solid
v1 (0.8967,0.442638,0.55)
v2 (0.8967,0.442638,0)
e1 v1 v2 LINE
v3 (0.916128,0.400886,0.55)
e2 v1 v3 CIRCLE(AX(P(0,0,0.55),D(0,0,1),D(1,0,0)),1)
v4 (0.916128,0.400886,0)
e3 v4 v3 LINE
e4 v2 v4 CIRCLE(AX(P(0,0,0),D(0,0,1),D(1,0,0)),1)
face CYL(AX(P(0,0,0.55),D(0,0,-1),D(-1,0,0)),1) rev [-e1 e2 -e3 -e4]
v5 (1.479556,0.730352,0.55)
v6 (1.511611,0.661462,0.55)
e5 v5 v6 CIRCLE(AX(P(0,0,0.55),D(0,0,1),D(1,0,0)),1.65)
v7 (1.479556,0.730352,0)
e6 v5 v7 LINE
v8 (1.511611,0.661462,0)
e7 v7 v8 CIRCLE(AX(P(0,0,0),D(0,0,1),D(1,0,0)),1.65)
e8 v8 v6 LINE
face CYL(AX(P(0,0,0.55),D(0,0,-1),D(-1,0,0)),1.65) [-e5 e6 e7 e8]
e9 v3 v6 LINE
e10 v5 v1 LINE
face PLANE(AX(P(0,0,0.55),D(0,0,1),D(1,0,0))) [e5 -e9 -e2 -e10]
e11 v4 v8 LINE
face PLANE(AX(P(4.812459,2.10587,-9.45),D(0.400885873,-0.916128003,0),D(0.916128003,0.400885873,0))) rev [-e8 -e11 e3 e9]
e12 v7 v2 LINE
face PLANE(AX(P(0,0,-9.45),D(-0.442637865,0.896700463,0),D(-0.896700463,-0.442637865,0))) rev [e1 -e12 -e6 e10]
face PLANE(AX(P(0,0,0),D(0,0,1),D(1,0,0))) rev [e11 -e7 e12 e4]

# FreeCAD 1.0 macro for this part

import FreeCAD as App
import Part
import Sketcher

V = App.Vector

doc = App.newDocument("Part")
body = doc.addObject("PartDesign::Body", "Body")

# Sketch on XY plane
sketch1 = body.newObject("Sketcher::SketchObject", "Sketch")
sketch1.AttachmentSupport = (doc.getObject("XY_Plane"), [""])
sketch1.MapMode = "FlatFace"
sketch1.addGeometry(Part.Circle(V(0, 0, 0), V(0, 0, 1), 1.6), False)
sketch1.addGeometry(Part.Circle(V(0, 0, 0), V(0, 0, 1), 1), False)
sketch1.addConstraint(Sketcher.Constraint("Coincident", 0, 3, -1, 1))
sketch1.addConstraint(Sketcher.Constraint("Coincident", 1, 3, -1, 1))
sketch1.addConstraint(Sketcher.Constraint("Diameter", 1, 2.0))
sketch1.addConstraint(Sketcher.Constraint("Diameter", 0, 3.3))
pad1 = body.newObject("PartDesign::Pad", "Pad")
pad1.Profile = sketch1
pad1.Length = 0.55

# Sketch on XY plane
sketch2 = body.newObject("Sketcher::SketchObject", "Sketch001")
sketch2.AttachmentSupport = (doc.getObject("XY_Plane"), [""])
sketch2.MapMode = "FlatFace"
sketch2.AttachmentOffset = App.Placement(V(0, 0, 0.55), App.Rotation())
sketch2.addGeometry(Part.LineSegment(V(4.81, 2.38, 0), V(0, 0, 0)), False)
sketch2.addGeometry(Part.LineSegment(V(0, 0, 0), V(4.81, 2.11, 0)), False)
sketch2.addGeometry(Part.LineSegment(V(4.81, 2.11, 0), V(4.81, 2.38, 0)), False)
sketch2.addConstraint(Sketcher.Constraint("Coincident", 0, 2, 1, 1))
sketch2.addConstraint(Sketcher.Constraint("Coincident", 1, 2, 2, 1))
sketch2.addConstraint(Sketcher.Constraint("Coincident", 2, 2, 0, 1))
sketch2.addConstraint(Sketcher.Constraint("Vertical", 2))
sketch2.addConstraint(Sketcher.Constraint("Coincident", 0, 2, -1, 1))
sketch2.addConstraint(Sketcher.Constraint("DistanceY", 2, 1, 2, 2, 0.269702))
sketch2.addConstraint(Sketcher.Constraint("DistanceX", -1, 1, 1, 2, 4.812459))
sketch2.addConstraint(Sketcher.Constraint("DistanceY", -1, 1, 1, 2, 2.10587))
pocket1 = body.newObject("PartDesign::Pocket", "Pocket")
pocket1.Profile = sketch2
pocket1.Length = 10

doc.recompute()
